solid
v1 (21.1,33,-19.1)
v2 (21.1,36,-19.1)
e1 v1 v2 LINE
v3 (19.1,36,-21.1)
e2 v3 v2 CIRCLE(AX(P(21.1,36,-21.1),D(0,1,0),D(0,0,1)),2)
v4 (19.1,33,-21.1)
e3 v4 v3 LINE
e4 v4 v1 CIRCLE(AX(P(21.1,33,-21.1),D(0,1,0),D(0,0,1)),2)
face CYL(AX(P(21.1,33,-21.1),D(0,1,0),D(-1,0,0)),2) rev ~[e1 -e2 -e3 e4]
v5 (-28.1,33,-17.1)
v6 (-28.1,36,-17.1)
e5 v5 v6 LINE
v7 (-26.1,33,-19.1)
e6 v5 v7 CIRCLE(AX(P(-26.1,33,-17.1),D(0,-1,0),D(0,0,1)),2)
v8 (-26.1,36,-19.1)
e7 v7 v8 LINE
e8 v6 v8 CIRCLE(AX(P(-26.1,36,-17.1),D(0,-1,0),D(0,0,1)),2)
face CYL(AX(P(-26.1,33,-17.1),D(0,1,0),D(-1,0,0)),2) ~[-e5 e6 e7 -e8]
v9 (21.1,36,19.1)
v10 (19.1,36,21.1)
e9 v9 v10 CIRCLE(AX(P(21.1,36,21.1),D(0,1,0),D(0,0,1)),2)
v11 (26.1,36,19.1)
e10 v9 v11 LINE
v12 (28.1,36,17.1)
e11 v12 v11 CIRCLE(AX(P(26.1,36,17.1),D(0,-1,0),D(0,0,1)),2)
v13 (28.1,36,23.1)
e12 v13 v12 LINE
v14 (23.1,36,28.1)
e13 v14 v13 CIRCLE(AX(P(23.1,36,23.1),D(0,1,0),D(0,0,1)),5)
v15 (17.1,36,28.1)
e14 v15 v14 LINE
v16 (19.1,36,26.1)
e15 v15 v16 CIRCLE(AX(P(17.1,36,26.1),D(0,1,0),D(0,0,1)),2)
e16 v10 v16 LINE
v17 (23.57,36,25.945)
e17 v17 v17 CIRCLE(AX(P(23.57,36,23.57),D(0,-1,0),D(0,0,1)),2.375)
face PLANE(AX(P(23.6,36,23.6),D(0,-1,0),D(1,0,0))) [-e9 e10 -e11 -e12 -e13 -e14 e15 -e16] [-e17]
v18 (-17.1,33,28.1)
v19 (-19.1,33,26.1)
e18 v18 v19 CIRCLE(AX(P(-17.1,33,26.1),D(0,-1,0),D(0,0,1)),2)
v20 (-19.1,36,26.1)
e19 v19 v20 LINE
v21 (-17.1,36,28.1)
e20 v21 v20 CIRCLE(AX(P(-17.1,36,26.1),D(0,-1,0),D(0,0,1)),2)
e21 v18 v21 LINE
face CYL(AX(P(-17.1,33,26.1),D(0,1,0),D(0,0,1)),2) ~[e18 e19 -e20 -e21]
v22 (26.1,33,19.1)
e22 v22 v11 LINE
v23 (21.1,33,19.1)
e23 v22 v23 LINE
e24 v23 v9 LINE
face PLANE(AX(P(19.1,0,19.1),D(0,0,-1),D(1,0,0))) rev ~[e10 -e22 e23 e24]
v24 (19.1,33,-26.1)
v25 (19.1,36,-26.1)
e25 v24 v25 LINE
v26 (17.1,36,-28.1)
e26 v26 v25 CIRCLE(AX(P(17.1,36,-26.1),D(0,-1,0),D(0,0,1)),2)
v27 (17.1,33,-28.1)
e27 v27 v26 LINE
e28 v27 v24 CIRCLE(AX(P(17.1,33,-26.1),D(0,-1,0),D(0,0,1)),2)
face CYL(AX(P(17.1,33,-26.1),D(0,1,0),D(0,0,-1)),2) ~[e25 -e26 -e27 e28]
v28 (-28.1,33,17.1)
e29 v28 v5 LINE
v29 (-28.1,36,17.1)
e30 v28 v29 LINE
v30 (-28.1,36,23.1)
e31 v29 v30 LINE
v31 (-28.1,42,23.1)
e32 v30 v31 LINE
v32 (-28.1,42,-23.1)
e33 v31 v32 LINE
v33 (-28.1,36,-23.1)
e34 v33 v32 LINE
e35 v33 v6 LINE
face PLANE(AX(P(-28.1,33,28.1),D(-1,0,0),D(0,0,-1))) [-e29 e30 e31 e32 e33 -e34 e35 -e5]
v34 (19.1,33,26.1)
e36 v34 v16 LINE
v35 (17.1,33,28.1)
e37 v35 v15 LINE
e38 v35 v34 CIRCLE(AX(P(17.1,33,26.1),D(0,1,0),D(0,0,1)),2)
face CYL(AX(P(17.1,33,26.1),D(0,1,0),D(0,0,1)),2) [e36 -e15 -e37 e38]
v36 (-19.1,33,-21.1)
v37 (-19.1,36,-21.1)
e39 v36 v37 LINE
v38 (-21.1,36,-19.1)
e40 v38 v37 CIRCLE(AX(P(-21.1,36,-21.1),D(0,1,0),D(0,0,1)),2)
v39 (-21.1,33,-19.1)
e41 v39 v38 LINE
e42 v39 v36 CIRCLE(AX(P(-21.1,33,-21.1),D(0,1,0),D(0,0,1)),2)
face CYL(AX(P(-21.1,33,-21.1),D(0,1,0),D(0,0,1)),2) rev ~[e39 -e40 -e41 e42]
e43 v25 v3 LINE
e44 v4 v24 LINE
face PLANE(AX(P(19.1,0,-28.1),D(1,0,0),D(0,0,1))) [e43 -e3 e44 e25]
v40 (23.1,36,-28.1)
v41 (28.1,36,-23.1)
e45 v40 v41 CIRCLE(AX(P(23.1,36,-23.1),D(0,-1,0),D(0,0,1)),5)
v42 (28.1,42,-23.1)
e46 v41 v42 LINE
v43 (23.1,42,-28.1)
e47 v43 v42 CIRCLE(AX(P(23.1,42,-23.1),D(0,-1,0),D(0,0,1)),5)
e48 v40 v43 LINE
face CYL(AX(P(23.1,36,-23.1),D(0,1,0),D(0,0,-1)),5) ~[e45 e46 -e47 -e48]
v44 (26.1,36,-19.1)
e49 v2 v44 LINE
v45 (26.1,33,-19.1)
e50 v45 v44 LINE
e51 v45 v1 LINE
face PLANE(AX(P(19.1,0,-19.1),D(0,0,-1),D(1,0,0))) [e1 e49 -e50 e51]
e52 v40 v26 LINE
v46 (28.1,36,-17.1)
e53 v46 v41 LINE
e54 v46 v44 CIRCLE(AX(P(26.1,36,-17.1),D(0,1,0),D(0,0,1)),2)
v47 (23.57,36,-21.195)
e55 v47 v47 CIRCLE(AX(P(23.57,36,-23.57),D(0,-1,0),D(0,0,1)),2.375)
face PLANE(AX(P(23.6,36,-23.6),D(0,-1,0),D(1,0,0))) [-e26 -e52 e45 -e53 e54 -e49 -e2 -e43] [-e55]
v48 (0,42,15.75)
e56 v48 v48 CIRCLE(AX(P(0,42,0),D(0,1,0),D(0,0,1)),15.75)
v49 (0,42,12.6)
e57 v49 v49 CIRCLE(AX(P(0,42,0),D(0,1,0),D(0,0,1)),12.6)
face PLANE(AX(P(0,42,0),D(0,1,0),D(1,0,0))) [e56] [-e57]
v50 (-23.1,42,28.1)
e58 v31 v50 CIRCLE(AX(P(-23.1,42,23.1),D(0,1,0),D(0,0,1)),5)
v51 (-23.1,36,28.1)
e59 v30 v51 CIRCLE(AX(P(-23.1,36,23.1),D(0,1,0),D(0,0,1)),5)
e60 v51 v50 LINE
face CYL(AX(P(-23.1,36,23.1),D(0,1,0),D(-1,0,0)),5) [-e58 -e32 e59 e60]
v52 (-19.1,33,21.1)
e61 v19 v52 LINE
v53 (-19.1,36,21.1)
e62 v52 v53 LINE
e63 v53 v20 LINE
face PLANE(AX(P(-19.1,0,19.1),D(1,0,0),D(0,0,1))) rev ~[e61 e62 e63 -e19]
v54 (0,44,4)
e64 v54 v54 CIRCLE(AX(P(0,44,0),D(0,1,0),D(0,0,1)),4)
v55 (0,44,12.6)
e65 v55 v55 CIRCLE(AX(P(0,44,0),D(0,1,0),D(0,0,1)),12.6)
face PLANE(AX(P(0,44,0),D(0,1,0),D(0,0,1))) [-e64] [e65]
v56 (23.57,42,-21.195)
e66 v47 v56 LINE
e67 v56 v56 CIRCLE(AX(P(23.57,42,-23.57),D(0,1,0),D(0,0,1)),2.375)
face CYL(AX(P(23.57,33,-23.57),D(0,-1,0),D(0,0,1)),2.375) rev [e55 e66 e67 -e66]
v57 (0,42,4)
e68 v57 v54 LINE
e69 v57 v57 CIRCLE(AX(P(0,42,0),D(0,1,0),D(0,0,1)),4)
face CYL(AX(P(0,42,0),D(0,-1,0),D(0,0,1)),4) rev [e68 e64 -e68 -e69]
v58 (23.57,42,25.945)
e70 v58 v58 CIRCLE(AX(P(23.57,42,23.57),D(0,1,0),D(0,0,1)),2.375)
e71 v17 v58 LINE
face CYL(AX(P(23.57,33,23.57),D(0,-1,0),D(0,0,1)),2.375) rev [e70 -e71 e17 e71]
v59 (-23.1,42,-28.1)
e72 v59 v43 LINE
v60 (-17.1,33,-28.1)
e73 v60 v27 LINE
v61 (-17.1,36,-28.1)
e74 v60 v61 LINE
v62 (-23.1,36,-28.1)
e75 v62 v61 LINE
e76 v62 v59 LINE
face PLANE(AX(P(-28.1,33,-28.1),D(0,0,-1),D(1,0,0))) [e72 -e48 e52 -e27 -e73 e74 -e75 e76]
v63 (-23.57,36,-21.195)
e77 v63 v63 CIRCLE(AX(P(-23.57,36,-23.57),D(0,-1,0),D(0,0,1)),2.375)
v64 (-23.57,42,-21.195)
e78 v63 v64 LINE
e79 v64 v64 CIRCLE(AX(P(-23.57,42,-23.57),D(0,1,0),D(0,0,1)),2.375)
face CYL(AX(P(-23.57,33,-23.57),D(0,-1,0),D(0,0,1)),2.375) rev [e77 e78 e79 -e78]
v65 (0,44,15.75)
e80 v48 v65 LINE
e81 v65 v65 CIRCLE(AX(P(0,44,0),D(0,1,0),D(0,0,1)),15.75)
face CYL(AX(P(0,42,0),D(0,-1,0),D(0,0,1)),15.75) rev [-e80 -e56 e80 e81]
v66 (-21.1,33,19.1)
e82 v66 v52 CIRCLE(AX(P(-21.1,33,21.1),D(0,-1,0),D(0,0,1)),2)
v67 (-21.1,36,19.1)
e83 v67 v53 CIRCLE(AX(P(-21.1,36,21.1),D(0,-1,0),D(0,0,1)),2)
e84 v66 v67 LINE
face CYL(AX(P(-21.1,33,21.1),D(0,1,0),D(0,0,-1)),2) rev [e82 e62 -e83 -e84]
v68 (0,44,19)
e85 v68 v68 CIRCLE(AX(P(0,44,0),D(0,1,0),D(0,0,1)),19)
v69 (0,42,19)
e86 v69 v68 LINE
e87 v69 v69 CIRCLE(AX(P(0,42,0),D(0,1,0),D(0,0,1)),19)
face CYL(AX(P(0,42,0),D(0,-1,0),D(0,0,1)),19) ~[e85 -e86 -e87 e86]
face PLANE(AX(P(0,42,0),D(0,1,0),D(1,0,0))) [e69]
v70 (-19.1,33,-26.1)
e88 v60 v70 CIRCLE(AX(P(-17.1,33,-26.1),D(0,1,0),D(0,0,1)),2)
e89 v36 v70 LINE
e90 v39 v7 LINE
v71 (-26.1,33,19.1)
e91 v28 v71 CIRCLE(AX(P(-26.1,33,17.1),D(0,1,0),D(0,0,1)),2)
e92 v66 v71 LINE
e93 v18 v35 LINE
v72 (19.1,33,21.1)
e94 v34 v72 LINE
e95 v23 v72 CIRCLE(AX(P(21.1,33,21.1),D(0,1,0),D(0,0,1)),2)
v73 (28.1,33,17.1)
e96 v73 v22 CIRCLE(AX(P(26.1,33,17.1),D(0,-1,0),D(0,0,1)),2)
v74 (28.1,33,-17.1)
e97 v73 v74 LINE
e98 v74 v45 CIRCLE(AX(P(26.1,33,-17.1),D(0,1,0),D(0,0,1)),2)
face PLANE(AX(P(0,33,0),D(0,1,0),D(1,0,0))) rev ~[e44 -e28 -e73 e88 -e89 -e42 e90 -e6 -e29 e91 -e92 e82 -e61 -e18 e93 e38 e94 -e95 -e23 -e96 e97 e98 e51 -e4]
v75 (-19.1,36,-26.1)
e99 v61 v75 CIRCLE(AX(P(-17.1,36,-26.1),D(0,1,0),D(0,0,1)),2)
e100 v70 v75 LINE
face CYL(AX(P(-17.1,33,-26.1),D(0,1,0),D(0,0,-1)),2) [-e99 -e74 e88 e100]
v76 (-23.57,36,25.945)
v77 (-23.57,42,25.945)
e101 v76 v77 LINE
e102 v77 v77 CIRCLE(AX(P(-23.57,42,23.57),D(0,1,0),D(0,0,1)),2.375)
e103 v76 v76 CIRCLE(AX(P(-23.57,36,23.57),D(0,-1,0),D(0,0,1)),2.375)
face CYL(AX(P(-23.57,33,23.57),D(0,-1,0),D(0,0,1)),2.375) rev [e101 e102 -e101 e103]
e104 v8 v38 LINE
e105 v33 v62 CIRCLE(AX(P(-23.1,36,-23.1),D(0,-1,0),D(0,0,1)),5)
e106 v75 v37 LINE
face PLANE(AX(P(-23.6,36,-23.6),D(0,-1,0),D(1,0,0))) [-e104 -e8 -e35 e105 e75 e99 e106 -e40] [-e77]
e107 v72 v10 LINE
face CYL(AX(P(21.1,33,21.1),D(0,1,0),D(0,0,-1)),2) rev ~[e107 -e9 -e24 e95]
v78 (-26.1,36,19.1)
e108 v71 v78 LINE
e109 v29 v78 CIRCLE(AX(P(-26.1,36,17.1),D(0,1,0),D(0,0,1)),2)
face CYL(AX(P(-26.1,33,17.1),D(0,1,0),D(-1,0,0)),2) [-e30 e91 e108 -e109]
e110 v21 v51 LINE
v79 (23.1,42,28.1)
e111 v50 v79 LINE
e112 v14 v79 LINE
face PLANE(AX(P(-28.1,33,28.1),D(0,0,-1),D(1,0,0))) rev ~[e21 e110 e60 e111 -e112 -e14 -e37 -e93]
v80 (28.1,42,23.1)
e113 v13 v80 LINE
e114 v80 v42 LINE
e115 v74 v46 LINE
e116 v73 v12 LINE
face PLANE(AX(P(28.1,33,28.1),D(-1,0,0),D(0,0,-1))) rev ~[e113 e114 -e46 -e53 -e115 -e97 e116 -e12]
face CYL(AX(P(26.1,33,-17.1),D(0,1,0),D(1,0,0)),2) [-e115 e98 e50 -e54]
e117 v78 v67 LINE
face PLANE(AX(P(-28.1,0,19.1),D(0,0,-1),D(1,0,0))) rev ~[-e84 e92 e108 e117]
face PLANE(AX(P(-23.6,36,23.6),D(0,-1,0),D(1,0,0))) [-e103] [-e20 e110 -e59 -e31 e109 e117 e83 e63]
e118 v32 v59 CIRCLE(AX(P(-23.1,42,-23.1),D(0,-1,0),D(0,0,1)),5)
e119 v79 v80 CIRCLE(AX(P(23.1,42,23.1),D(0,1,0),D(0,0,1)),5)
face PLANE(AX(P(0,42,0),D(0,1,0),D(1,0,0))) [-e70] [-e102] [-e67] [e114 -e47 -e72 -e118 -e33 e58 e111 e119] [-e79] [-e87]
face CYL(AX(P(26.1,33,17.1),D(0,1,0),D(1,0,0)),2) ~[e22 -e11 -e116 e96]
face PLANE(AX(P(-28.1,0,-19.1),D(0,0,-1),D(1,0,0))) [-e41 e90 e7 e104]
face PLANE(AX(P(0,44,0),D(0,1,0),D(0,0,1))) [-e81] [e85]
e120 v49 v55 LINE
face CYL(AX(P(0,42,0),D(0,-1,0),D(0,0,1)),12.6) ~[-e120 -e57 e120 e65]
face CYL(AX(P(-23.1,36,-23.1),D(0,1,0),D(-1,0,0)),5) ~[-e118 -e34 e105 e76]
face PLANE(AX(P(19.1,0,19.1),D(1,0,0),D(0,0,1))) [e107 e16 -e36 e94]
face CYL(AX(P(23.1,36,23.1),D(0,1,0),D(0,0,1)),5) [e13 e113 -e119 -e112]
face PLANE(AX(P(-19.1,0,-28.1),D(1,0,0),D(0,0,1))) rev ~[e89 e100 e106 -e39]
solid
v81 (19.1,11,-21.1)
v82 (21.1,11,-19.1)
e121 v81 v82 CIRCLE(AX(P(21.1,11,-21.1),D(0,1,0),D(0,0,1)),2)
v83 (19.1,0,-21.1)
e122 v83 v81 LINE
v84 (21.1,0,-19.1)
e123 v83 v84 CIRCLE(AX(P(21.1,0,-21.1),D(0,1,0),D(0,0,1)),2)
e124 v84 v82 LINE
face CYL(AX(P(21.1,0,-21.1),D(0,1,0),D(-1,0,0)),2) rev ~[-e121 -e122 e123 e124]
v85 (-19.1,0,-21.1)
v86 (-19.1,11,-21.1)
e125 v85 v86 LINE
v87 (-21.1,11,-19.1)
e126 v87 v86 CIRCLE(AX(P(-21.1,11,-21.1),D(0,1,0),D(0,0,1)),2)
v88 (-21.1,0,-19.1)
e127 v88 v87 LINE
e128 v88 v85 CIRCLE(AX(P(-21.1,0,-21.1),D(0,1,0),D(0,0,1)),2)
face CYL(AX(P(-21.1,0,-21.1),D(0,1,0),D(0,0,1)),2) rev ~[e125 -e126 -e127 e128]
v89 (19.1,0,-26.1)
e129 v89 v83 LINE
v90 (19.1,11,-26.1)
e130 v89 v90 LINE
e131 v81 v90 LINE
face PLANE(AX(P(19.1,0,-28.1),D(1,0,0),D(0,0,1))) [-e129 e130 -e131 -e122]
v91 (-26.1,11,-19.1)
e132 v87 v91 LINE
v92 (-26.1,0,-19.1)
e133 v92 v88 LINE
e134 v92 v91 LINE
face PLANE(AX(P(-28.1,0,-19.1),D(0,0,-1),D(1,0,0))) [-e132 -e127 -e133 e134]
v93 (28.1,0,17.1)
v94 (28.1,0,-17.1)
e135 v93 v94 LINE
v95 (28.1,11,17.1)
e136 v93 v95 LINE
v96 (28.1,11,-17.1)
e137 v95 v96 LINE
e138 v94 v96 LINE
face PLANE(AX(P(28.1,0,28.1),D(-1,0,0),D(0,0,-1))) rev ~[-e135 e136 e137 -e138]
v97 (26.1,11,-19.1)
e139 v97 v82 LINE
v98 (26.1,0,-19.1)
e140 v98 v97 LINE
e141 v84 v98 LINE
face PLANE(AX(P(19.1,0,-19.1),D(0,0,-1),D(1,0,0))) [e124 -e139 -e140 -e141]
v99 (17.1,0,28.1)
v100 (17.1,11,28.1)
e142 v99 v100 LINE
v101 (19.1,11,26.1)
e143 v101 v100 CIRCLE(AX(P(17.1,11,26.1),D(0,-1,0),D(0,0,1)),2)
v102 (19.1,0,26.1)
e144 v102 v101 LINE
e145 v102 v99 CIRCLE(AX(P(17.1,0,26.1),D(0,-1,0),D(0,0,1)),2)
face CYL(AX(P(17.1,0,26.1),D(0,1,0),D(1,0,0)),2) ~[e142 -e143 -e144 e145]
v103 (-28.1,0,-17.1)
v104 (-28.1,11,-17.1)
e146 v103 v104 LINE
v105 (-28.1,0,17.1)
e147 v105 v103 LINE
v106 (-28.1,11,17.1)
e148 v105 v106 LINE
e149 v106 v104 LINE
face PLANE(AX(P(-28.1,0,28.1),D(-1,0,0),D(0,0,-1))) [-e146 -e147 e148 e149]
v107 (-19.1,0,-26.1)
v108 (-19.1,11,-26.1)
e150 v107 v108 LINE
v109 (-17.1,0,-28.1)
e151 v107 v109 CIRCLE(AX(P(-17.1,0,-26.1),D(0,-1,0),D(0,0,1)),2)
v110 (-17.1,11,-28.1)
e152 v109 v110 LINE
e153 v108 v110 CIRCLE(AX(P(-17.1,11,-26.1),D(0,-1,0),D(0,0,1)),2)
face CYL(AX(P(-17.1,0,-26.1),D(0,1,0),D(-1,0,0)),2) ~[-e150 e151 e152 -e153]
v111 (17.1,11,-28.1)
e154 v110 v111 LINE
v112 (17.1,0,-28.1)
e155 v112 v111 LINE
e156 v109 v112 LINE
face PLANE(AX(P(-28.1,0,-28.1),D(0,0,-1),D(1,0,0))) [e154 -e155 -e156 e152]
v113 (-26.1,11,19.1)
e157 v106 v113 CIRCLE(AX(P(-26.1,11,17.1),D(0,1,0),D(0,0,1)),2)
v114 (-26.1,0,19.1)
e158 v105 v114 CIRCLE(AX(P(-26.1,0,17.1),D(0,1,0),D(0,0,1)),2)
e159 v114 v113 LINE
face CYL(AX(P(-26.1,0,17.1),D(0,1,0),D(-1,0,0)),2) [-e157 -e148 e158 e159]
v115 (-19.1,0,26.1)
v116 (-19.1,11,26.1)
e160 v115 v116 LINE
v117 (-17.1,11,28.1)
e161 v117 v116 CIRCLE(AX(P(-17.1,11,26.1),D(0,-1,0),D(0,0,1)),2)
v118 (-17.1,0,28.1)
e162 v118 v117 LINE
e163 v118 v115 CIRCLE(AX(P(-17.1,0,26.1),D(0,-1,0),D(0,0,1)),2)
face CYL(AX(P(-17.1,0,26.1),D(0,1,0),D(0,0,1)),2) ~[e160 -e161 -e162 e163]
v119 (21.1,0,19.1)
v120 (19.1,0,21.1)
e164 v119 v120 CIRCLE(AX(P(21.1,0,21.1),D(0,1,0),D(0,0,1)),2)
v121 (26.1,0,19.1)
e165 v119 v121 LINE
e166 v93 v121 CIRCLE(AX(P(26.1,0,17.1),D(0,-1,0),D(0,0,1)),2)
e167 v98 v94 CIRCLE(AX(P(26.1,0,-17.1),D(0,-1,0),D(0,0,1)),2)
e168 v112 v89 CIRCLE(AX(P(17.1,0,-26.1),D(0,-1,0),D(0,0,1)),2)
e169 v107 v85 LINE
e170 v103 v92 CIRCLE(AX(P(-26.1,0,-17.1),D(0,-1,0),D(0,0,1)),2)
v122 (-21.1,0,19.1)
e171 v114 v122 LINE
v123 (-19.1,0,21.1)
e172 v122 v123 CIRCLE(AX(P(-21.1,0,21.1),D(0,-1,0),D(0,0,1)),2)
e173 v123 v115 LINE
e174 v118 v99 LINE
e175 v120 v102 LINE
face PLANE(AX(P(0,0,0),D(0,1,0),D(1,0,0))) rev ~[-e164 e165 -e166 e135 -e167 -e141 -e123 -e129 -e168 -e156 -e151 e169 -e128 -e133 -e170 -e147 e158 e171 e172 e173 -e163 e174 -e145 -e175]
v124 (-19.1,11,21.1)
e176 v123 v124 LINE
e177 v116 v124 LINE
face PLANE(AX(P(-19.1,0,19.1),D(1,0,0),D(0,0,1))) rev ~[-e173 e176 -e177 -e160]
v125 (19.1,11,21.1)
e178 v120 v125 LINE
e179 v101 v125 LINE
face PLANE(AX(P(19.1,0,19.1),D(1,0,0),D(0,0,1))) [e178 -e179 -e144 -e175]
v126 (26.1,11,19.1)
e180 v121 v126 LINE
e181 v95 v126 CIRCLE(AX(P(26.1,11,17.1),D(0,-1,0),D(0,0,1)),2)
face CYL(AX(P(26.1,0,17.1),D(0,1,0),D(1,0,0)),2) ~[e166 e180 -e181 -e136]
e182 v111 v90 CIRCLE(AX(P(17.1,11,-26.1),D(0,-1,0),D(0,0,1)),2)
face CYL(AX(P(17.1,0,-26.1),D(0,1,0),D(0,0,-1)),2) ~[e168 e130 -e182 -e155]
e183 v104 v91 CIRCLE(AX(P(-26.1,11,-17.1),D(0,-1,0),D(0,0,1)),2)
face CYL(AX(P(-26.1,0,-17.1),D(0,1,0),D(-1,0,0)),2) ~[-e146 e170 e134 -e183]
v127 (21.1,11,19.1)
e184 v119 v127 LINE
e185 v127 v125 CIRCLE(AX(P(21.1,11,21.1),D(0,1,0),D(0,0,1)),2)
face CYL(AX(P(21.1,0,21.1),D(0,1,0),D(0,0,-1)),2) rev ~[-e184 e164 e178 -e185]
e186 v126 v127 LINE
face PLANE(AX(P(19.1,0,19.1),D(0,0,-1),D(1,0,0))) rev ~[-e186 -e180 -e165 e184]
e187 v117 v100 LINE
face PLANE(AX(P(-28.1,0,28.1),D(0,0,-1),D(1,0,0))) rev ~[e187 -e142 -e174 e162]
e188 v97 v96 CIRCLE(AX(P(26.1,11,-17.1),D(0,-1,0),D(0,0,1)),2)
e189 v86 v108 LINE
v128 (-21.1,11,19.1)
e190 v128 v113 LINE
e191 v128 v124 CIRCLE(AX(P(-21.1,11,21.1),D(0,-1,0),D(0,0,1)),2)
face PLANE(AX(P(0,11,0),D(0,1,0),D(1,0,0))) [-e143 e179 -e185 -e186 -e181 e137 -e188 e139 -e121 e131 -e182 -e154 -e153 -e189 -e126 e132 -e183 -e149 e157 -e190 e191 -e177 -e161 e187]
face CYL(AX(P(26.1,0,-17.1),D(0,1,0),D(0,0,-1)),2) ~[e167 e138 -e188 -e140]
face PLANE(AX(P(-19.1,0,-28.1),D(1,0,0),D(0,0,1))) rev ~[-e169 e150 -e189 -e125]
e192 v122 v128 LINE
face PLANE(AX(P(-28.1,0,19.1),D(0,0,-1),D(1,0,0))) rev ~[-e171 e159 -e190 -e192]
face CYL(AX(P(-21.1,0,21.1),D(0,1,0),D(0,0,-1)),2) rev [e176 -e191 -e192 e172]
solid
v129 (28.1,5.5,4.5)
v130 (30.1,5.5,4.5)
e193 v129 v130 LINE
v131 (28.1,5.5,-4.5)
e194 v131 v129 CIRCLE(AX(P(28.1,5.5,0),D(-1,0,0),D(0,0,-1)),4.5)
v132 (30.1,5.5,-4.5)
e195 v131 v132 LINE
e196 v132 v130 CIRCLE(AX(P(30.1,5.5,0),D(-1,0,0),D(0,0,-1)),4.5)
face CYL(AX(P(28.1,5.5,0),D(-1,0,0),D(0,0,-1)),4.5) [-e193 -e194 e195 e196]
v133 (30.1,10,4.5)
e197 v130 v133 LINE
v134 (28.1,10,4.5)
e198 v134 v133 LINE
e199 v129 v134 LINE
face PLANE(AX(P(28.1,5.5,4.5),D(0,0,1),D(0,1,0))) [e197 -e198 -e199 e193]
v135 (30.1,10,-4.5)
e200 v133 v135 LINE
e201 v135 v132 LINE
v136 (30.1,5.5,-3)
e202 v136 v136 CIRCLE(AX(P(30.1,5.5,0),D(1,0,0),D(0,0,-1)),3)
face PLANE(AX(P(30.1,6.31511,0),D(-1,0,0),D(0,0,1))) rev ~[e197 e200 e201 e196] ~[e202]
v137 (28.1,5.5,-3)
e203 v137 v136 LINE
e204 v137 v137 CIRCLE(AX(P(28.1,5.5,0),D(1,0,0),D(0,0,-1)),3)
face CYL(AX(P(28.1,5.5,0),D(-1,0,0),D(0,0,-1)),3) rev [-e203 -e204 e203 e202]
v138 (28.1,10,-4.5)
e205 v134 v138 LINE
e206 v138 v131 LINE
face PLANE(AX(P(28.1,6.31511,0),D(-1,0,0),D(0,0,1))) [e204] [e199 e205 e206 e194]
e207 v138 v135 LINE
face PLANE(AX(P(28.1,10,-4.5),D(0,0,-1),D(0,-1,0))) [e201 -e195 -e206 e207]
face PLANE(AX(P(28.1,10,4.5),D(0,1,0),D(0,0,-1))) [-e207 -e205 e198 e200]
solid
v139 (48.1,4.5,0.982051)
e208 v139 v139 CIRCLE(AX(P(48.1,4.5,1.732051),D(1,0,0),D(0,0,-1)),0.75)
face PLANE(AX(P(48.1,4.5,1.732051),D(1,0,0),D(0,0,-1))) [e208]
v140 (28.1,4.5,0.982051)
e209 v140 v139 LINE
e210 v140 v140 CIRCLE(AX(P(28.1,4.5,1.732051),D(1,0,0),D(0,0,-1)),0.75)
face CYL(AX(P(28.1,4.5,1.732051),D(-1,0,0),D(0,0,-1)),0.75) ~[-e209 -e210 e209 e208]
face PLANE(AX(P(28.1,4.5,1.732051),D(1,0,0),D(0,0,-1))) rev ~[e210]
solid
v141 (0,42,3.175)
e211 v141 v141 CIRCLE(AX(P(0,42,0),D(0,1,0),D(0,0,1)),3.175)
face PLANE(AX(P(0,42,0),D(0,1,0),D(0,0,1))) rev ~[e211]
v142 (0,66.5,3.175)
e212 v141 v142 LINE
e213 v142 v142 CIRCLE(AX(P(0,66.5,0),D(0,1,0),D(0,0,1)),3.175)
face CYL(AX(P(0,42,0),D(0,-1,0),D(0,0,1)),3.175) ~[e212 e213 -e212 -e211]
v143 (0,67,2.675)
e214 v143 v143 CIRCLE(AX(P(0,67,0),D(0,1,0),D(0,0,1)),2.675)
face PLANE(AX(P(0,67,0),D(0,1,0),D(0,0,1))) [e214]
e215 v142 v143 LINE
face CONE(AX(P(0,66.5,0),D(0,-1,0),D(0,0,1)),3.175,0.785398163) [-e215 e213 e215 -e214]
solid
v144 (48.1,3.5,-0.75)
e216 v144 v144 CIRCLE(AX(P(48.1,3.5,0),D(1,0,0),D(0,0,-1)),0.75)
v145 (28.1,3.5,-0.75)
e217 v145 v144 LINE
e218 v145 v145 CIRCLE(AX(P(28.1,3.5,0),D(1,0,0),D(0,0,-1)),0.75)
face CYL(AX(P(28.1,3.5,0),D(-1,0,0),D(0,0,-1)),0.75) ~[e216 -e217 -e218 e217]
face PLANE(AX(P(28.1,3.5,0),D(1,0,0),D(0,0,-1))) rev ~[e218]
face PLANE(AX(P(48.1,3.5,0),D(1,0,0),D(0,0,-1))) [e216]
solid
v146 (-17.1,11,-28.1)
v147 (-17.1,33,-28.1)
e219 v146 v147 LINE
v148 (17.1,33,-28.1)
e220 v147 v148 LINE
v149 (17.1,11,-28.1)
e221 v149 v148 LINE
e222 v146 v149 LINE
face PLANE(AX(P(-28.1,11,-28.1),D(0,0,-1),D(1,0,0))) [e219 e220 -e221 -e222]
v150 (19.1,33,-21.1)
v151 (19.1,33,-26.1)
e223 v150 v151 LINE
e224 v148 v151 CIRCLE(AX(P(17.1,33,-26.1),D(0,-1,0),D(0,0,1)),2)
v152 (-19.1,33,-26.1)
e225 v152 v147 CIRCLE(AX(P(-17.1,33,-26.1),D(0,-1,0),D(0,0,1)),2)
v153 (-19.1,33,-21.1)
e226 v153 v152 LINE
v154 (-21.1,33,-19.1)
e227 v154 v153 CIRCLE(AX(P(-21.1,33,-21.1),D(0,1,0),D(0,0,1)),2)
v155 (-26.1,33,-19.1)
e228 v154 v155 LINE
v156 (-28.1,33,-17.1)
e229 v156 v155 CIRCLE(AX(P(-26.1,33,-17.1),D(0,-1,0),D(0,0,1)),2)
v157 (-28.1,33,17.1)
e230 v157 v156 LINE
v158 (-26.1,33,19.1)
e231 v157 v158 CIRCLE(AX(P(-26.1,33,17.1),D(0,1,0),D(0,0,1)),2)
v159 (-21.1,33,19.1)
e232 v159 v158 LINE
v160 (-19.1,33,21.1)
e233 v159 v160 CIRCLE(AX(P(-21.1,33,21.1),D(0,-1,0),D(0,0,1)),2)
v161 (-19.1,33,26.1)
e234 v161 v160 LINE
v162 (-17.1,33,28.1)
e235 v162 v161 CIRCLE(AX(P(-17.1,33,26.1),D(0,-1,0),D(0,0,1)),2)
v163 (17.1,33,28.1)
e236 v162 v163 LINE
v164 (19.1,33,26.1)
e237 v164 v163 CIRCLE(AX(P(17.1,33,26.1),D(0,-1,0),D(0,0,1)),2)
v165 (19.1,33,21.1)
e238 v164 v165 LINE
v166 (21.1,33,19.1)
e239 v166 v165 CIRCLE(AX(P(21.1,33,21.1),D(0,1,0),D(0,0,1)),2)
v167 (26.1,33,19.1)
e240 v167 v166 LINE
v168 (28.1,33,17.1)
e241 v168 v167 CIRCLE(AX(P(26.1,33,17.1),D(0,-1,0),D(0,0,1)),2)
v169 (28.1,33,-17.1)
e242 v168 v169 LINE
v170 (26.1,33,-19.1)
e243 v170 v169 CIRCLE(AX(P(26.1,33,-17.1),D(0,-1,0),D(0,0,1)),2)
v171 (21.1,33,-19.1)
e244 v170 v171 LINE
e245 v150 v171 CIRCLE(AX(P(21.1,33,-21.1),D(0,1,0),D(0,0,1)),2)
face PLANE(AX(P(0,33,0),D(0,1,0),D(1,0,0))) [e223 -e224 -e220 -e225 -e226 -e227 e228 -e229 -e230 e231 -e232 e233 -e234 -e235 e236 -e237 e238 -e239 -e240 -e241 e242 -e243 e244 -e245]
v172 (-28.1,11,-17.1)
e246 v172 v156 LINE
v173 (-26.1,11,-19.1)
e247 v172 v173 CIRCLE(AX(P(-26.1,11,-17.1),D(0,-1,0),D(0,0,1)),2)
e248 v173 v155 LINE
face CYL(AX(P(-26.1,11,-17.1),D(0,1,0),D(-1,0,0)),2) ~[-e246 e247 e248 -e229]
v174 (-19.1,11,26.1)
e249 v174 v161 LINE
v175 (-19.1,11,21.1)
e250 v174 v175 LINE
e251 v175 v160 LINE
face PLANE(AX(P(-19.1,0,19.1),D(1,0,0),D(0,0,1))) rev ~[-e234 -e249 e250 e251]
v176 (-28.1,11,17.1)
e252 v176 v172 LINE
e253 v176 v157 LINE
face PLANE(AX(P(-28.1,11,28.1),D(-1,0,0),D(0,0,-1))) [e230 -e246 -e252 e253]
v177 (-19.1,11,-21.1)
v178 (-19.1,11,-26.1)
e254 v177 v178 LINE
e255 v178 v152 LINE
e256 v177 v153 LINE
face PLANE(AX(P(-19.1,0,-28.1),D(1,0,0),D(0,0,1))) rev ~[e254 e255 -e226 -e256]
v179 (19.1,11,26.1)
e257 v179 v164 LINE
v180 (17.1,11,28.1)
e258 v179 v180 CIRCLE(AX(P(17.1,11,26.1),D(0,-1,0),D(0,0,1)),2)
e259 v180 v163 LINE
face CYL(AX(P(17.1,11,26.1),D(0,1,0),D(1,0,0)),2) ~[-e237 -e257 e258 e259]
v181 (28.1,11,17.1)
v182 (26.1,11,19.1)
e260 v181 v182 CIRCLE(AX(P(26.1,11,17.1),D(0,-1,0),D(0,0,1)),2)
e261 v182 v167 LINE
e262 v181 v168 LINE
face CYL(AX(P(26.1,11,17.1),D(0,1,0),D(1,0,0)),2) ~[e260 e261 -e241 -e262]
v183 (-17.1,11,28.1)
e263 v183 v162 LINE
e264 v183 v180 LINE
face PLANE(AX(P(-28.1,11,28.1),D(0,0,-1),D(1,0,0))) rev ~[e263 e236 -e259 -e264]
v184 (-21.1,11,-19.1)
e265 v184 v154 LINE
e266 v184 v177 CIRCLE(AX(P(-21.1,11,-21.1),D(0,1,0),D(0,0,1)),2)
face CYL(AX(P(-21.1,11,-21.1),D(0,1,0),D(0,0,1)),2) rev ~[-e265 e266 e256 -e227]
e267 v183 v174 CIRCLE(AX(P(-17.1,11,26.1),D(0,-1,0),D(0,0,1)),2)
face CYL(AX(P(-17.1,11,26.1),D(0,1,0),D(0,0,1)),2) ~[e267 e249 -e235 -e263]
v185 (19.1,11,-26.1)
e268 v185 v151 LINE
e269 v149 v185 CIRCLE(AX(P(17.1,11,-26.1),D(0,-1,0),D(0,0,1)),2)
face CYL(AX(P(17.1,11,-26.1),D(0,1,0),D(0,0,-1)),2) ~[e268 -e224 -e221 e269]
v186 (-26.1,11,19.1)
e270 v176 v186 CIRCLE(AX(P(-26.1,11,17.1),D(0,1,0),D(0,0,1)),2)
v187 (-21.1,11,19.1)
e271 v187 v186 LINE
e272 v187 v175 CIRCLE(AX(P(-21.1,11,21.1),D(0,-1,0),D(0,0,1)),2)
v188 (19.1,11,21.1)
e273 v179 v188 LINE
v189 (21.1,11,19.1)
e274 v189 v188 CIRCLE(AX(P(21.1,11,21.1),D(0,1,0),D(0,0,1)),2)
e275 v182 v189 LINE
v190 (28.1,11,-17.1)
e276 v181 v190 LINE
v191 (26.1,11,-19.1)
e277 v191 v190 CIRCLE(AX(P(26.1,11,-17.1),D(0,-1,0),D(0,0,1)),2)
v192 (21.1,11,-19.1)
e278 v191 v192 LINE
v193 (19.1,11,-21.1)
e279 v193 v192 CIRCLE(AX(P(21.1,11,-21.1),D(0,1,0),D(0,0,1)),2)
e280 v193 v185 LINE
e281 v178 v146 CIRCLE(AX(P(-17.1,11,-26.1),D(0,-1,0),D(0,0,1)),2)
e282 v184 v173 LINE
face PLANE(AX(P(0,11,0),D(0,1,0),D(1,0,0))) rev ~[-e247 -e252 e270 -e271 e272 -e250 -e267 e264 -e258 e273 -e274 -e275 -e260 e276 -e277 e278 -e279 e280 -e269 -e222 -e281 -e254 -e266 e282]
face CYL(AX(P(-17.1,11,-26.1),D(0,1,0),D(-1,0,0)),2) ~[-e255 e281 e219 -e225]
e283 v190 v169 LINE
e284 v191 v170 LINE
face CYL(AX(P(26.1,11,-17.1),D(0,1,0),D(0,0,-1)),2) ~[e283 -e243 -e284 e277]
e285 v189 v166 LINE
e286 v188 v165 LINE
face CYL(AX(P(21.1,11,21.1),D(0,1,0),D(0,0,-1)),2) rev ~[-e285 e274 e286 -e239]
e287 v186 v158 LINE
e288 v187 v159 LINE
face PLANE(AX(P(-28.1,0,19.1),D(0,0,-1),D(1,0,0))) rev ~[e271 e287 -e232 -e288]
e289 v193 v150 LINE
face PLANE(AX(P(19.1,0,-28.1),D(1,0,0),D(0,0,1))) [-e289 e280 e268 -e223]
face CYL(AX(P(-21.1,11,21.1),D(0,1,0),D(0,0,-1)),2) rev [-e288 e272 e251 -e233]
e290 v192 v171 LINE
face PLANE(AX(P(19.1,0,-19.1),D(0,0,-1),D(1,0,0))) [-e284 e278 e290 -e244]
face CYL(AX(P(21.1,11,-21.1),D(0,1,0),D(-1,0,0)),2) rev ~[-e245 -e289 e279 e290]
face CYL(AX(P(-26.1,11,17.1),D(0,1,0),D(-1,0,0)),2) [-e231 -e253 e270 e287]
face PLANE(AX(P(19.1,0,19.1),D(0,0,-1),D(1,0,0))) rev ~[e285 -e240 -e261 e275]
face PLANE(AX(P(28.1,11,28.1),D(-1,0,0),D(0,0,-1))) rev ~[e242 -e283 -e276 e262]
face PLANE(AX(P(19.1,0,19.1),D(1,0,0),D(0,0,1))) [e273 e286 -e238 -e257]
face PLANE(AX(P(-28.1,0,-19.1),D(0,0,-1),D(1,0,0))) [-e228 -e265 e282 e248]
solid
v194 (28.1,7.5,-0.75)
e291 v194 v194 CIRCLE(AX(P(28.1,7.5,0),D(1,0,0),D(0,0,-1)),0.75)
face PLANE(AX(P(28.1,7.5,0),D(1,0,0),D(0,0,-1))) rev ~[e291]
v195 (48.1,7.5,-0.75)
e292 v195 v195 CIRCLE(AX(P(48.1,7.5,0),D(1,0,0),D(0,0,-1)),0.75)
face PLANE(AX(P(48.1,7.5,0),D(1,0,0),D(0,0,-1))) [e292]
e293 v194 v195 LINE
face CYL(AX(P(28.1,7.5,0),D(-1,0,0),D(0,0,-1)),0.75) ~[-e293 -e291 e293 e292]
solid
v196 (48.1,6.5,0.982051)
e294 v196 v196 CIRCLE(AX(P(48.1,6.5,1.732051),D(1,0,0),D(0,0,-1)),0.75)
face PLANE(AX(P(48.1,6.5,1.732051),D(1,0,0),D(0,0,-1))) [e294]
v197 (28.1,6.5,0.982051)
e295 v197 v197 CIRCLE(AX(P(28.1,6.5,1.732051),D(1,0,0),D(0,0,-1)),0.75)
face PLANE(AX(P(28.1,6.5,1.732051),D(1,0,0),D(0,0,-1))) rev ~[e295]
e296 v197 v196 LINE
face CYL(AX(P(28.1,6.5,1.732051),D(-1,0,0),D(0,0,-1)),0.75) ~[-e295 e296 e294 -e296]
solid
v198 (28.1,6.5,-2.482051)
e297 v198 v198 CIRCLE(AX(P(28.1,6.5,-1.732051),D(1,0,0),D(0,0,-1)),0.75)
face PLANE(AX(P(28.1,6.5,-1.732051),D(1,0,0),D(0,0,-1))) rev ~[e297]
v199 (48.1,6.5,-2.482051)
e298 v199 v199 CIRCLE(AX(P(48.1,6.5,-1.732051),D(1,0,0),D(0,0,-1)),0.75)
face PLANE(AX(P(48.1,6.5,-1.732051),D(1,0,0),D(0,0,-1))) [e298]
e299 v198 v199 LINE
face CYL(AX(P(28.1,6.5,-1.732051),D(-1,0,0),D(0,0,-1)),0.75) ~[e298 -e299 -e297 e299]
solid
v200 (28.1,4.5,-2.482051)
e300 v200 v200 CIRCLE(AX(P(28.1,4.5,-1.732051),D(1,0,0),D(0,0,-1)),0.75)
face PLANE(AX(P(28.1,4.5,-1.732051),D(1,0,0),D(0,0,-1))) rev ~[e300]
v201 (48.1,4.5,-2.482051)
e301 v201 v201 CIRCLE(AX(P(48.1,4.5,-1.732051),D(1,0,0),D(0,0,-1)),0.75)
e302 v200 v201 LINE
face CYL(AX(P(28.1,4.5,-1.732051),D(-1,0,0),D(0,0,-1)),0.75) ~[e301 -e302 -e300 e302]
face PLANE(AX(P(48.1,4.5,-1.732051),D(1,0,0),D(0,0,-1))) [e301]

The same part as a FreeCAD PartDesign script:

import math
import FreeCAD as App
import Part
import Sketcher


def edges_at(feature, points):
    """Names of the edges that pass closest to the given points."""
    edges = feature.Shape.Edges
    near = lambda p: min(range(len(edges)), key=lambda i: edges[i].distToShape(Part.Vertex(*p))[0])
    return sorted({f"Edge{near(p) + 1}" for p in points})


def add_polygon(sketch, points):
    """Adds a closed chain of lines whose ends are joined by coincident constraints."""
    first, n = sketch.GeometryCount, len(points)
    for a, b in zip(points, points[1:] + points[:1]):
        sketch.addGeometry(Part.LineSegment(App.Vector(*a, 0), App.Vector(*b, 0)), False)
    for i in range(n):
        sketch.addConstraint(Sketcher.Constraint("Coincident", first + i, 2, first + (i + 1) % n, 1))

doc = App.newDocument("Part")
body = doc.addObject("PartDesign::Body", "Body")

# Sketch on XZ plane
sketch1 = doc.addObject("Sketcher::SketchObject", "Sketch")
body.addObject(sketch1)
sketch1.AttachmentSupport = (doc.XZ_Plane, [""])
sketch1.MapMode = "FlatFace"
add_polygon(sketch1, [(-28.1, -28.1), (-28.1, 28.1), (28.1, 28.1), (28.1, -28.1)])  # lines 0-3
sketch1.addGeometry(Part.Circle(App.Vector(-23.57, 23.57, 0), App.Vector(0, 0, 1), 2.375), False)  # 4
sketch1.addGeometry(Part.Circle(App.Vector(23.57, 23.57, 0), App.Vector(0, 0, 1), 2.375), False)  # 5
sketch1.addGeometry(Part.Circle(App.Vector(-23.57, -23.57, 0), App.Vector(0, 0, 1), 2.375), False)  # 6
sketch1.addGeometry(Part.Circle(App.Vector(23.57, -23.57, 0), App.Vector(0, 0, 1), 2.375), False)  # 7
sketch1.addConstraint([
    Sketcher.Constraint("Vertical", 0),
    Sketcher.Constraint("Horizontal", 1),
    Sketcher.Constraint("Vertical", 2),
    Sketcher.Constraint("Horizontal", 3),
    Sketcher.Constraint("Equal", 4, 5),
    Sketcher.Constraint("Equal", 5, 6),
    Sketcher.Constraint("Equal", 6, 7),
    Sketcher.Constraint("Symmetric", 5, 3, 6, 3, -1, 1),
    Sketcher.Constraint("Symmetric", 4, 3, 7, 3, -1, 1),
    Sketcher.Constraint("Symmetric", 0, 2, 2, 2, -1, 1),
    Sketcher.Constraint("Symmetric", 4, 3, 5, 3, -2),
    Sketcher.Constraint("Equal", 3, 0),
    Sketcher.Constraint("Diameter", 4, 4.75),
    Sketcher.Constraint("DistanceX", 1, 1, 1, 2, 56.2),
    Sketcher.Constraint("DistanceX", 4, 3, -1, 1, 23.57),
    Sketcher.Constraint("DistanceY", -1, 1, 4, 3, 23.57),
])
pad1 = doc.addObject("PartDesign::Pad", "Pad")
body.addObject(pad1)
pad1.Profile = sketch1
pad1.Length = 11
pad1.Reversed = True
body2 = doc.addObject("PartDesign::Body", "Body001")

# Sketch on XZ plane
sketch2 = doc.addObject("Sketcher::SketchObject", "Sketch001")
body2.addObject(sketch2)
sketch2.AttachmentSupport = (doc.getObject("XZ_Plane001"), [""])
sketch2.MapMode = "FlatFace"
sketch2.AttachmentOffset = App.Placement(App.Vector(0, 0, -11), App.Rotation())
add_polygon(sketch2, [(-28.1, -28.1), (-28.1, 28.1), (28.1, 28.1), (28.1, -28.1)])  # lines 0-3
sketch2.addGeometry(Part.Circle(App.Vector(-23.57, 23.57, 0), App.Vector(0, 0, 1), 2.375), False)  # 4
sketch2.addGeometry(Part.Circle(App.Vector(23.57, 23.57, 0), App.Vector(0, 0, 1), 2.375), False)  # 5
sketch2.addGeometry(Part.Circle(App.Vector(-23.57, -23.57, 0), App.Vector(0, 0, 1), 2.375), False)  # 6
sketch2.addGeometry(Part.Circle(App.Vector(23.57, -23.57, 0), App.Vector(0, 0, 1), 2.375), False)  # 7
sketch2.addConstraint([
    Sketcher.Constraint("Vertical", 0),
    Sketcher.Constraint("Horizontal", 1),
    Sketcher.Constraint("Vertical", 2),
    Sketcher.Constraint("Horizontal", 3),
    Sketcher.Constraint("Equal", 4, 5),
    Sketcher.Constraint("Equal", 5, 6),
    Sketcher.Constraint("Equal", 6, 7),
    Sketcher.Constraint("Symmetric", 5, 3, 6, 3, -1, 1),
    Sketcher.Constraint("Symmetric", 4, 3, 7, 3, -1, 1),
    Sketcher.Constraint("Symmetric", 0, 2, 2, 2, -1, 1),
    Sketcher.Constraint("Symmetric", 4, 3, 5, 3, -2),
    Sketcher.Constraint("Equal", 3, 0),
    Sketcher.Constraint("Diameter", 4, 4.75),
    Sketcher.Constraint("DistanceX", 1, 1, 1, 2, 56.2),
    Sketcher.Constraint("DistanceX", 4, 3, -1, 1, 23.57),
    Sketcher.Constraint("DistanceY", -1, 1, 4, 3, 23.57),
])
pad2 = doc.addObject("PartDesign::Pad", "Pad001")
body2.addObject(pad2)
pad2.Profile = sketch2
pad2.Length = 22
pad2.Reversed = True
body3 = doc.addObject("PartDesign::Body", "Body002")

# Sketch on XZ plane
sketch3 = doc.addObject("Sketcher::SketchObject", "Sketch002")
body3.addObject(sketch3)
sketch3.AttachmentSupport = (doc.getObject("XZ_Plane002"), [""])
sketch3.MapMode = "FlatFace"
sketch3.AttachmentOffset = App.Placement(App.Vector(0, 0, -33), App.Rotation())
add_polygon(sketch3, [(-28.1, -28.1), (-28.1, 28.1), (28.1, 28.1), (28.1, -28.1)])  # lines 0-3
sketch3.addGeometry(Part.Circle(App.Vector(-23.57, 23.57, 0), App.Vector(0, 0, 1), 2.375), False)  # 4
sketch3.addGeometry(Part.Circle(App.Vector(23.57, 23.57, 0), App.Vector(0, 0, 1), 2.375), False)  # 5
sketch3.addGeometry(Part.Circle(App.Vector(-23.57, -23.57, 0), App.Vector(0, 0, 1), 2.375), False)  # 6
sketch3.addGeometry(Part.Circle(App.Vector(23.57, -23.57, 0), App.Vector(0, 0, 1), 2.375), False)  # 7
sketch3.addConstraint([
    Sketcher.Constraint("Vertical", 0),
    Sketcher.Constraint("Horizontal", 1),
    Sketcher.Constraint("Vertical", 2),
    Sketcher.Constraint("Horizontal", 3),
    Sketcher.Constraint("Equal", 4, 5),
    Sketcher.Constraint("Equal", 5, 6),
    Sketcher.Constraint("Equal", 6, 7),
    Sketcher.Constraint("Symmetric", 5, 3, 6, 3, -1, 1),
    Sketcher.Constraint("Symmetric", 4, 3, 7, 3, -1, 1),
    Sketcher.Constraint("Symmetric", 0, 2, 2, 2, -1, 1),
    Sketcher.Constraint("Symmetric", 4, 3, 5, 3, -2),
    Sketcher.Constraint("Equal", 3, 0),
    Sketcher.Constraint("Diameter", 4, 4.75),
    Sketcher.Constraint("DistanceX", 1, 1, 1, 2, 56.2),
    Sketcher.Constraint("DistanceX", 4, 3, -1, 1, 23.57),
    Sketcher.Constraint("DistanceY", -1, 1, 4, 3, 23.57),
])
pad3 = doc.addObject("PartDesign::Pad", "Pad002")
body3.addObject(pad3)
pad3.Profile = sketch3
pad3.Length = 9
pad3.Reversed = True

# Sketch on XZ plane
sketch4 = doc.addObject("Sketcher::SketchObject", "Sketch003")
body3.addObject(sketch4)
sketch4.AttachmentSupport = (doc.getObject("XZ_Plane002"), [""])
sketch4.MapMode = "FlatFace"
sketch4.AttachmentOffset = App.Placement(App.Vector(0, 0, -42), App.Rotation())
sketch4.addGeometry([
    Part.Circle(App.Vector(0, 0, 0), App.Vector(0, 0, 1), 19),
    Part.Circle(App.Vector(0, 0, 0), App.Vector(0, 0, 1), 15.75),
    Part.Circle(App.Vector(0, 0, 0), App.Vector(0, 0, 1), 12.6),
    Part.Circle(App.Vector(0, 0, 0), App.Vector(0, 0, 1), 4),
], False)
sketch4.addConstraint([
    Sketcher.Constraint("Coincident", 0, 3, -1, 1),
    Sketcher.Constraint("Coincident", 1, 3, -1, 1),
    Sketcher.Constraint("Coincident", 2, 3, -1, 1),
    Sketcher.Constraint("Coincident", 3, 3, -1, 1),
    Sketcher.Constraint("Diameter", 0, 38.0),
    Sketcher.Constraint("Diameter", 3, 8.0),
    Sketcher.Constraint("Diameter", 1, 31.5),
    Sketcher.Constraint("Diameter", 2, 25.2),
])
pad4 = doc.addObject("PartDesign::Pad", "Pad003")
body3.addObject(pad4)
pad4.Profile = sketch4
pad4.Length = 2
pad4.Reversed = True
body4 = doc.addObject("PartDesign::Body", "Body003")

# Sketch on YZ plane
sketch5 = doc.addObject("Sketcher::SketchObject", "Sketch004")
body4.addObject(sketch5)
sketch5.AttachmentSupport = (doc.getObject("YZ_Plane003"), [""])
sketch5.MapMode = "FlatFace"
sketch5.AttachmentOffset = App.Placement(App.Vector(0, 0, 28.1), App.Rotation())
sketch5.addGeometry([
    Part.LineSegment(App.Vector(10, 4.5, 0), App.Vector(5.5, 4.5, 0)),  # 0
    Part.ArcOfCircle(Part.Circle(App.Vector(5.5, 0, 0), App.Vector(0, 0, 1), 4.5), math.radians(90), math.radians(270)),  # 1
    Part.LineSegment(App.Vector(5.5, -4.5, 0), App.Vector(10, -4.5, 0)),  # 2
    Part.LineSegment(App.Vector(10, -4.5, 0), App.Vector(10, 4.5, 0)),  # 3
    Part.Circle(App.Vector(5.5, 0, 0), App.Vector(0, 0, 1), 3),  # 4
], False)
sketch5.addConstraint([
    Sketcher.Constraint("Tangent", 0, 2, 1, 1),
    Sketcher.Constraint("Tangent", 1, 2, 2, 1),
    Sketcher.Constraint("Coincident", 2, 2, 3, 1),
    Sketcher.Constraint("Coincident", 3, 2, 0, 1),
    Sketcher.Constraint("Horizontal", 0),
    Sketcher.Constraint("Horizontal", 2),
    Sketcher.Constraint("Vertical", 3),
    Sketcher.Constraint("Coincident", 4, 3, 1, 3),
    Sketcher.Constraint("PointOnObject", 1, 3, -1),
    Sketcher.Constraint("Diameter", 4, 6.0),
    Sketcher.Constraint("Radius", 1, 4.5),
    Sketcher.Constraint("DistanceX", 0, 2, 0, 1, 4.5),
    Sketcher.Constraint("DistanceX", -1, 1, 2, 2, 10.0),
])
pad5 = doc.addObject("PartDesign::Pad", "Pad004")
body4.addObject(pad5)
pad5.Profile = sketch5
pad5.Length = 2
body5 = doc.addObject("PartDesign::Body", "Body004")

# Sketch on YZ plane
sketch6 = doc.addObject("Sketcher::SketchObject", "Sketch005")
body5.addObject(sketch6)
sketch6.AttachmentSupport = (doc.getObject("YZ_Plane004"), [""])
sketch6.MapMode = "FlatFace"
sketch6.AttachmentOffset = App.Placement(App.Vector(0, 0, 28.1), App.Rotation())
sketch6.addGeometry(Part.Circle(App.Vector(4.5, 1.732051, 0), App.Vector(0, 0, 1), 0.75), False)
sketch6.addConstraint([
    Sketcher.Constraint("Diameter", 0, 1.5),
    Sketcher.Constraint("DistanceX", -1, 1, 0, 3, 4.5),
    Sketcher.Constraint("DistanceY", -1, 1, 0, 3, 1.732051),
])
pad6 = doc.addObject("PartDesign::Pad", "Pad005")
body5.addObject(pad6)
pad6.Profile = sketch6
pad6.Length = 20
body6 = doc.addObject("PartDesign::Body", "Body005")

# Sketch on YZ plane
sketch7 = doc.addObject("Sketcher::SketchObject", "Sketch006")
body6.addObject(sketch7)
sketch7.AttachmentSupport = (doc.getObject("YZ_Plane005"), [""])
sketch7.MapMode = "FlatFace"
sketch7.AttachmentOffset = App.Placement(App.Vector(0, 0, 28.1), App.Rotation())
sketch7.addGeometry(Part.Circle(App.Vector(3.5, 0, 0), App.Vector(0, 0, 1), 0.75), False)
sketch7.addConstraint([
    Sketcher.Constraint("PointOnObject", 0, 3, -1),
    Sketcher.Constraint("Diameter", 0, 1.5),
    Sketcher.Constraint("DistanceX", -1, 1, 0, 3, 3.5),
])
pad7 = doc.addObject("PartDesign::Pad", "Pad006")
body6.addObject(pad7)
pad7.Profile = sketch7
pad7.Length = 20
body7 = doc.addObject("PartDesign::Body", "Body006")

# Sketch on YZ plane
sketch8 = doc.addObject("Sketcher::SketchObject", "Sketch007")
body7.addObject(sketch8)
sketch8.AttachmentSupport = (doc.getObject("YZ_Plane006"), [""])
sketch8.MapMode = "FlatFace"
sketch8.AttachmentOffset = App.Placement(App.Vector(0, 0, 28.1), App.Rotation())
sketch8.addGeometry(Part.Circle(App.Vector(6.5, 1.732051, 0), App.Vector(0, 0, 1), 0.75), False)
sketch8.addConstraint([
    Sketcher.Constraint("Diameter", 0, 1.5),
    Sketcher.Constraint("DistanceX", -1, 1, 0, 3, 6.5),
    Sketcher.Constraint("DistanceY", -1, 1, 0, 3, 1.732051),
])
pad8 = doc.addObject("PartDesign::Pad", "Pad007")
body7.addObject(pad8)
pad8.Profile = sketch8
pad8.Length = 20
body8 = doc.addObject("PartDesign::Body", "Body007")

# Sketch on YZ plane
sketch9 = doc.addObject("Sketcher::SketchObject", "Sketch008")
body8.addObject(sketch9)
sketch9.AttachmentSupport = (doc.getObject("YZ_Plane007"), [""])
sketch9.MapMode = "FlatFace"
sketch9.AttachmentOffset = App.Placement(App.Vector(0, 0, 28.1), App.Rotation())
sketch9.addGeometry(Part.Circle(App.Vector(7.5, 0, 0), App.Vector(0, 0, 1), 0.75), False)
sketch9.addConstraint([
    Sketcher.Constraint("PointOnObject", 0, 3, -1),
    Sketcher.Constraint("Diameter", 0, 1.5),
    Sketcher.Constraint("DistanceX", -1, 1, 0, 3, 7.5),
])
pad9 = doc.addObject("PartDesign::Pad", "Pad008")
body8.addObject(pad9)
pad9.Profile = sketch9
pad9.Length = 20
body9 = doc.addObject("PartDesign::Body", "Body008")

# Sketch on YZ plane
sketch10 = doc.addObject("Sketcher::SketchObject", "Sketch009")
body9.addObject(sketch10)
sketch10.AttachmentSupport = (doc.getObject("YZ_Plane008"), [""])
sketch10.MapMode = "FlatFace"
sketch10.AttachmentOffset = App.Placement(App.Vector(0, 0, 28.1), App.Rotation())
sketch10.addGeometry(Part.Circle(App.Vector(6.5, -1.732051, 0), App.Vector(0, 0, 1), 0.75), False)
sketch10.addConstraint([
    Sketcher.Constraint("Diameter", 0, 1.5),
    Sketcher.Constraint("DistanceX", -1, 1, 0, 3, 6.5),
    Sketcher.Constraint("DistanceY", 0, 3, -1, 1, 1.732051),
])
pad10 = doc.addObject("PartDesign::Pad", "Pad009")
body9.addObject(pad10)
pad10.Profile = sketch10
pad10.Length = 20
body10 = doc.addObject("PartDesign::Body", "Body009")

# Sketch on YZ plane
sketch11 = doc.addObject("Sketcher::SketchObject", "Sketch010")
body10.addObject(sketch11)
sketch11.AttachmentSupport = (doc.getObject("YZ_Plane009"), [""])
sketch11.MapMode = "FlatFace"
sketch11.AttachmentOffset = App.Placement(App.Vector(0, 0, 28.1), App.Rotation())
sketch11.addGeometry(Part.Circle(App.Vector(4.5, -1.732051, 0), App.Vector(0, 0, 1), 0.75), False)
sketch11.addConstraint([
    Sketcher.Constraint("Diameter", 0, 1.5),
    Sketcher.Constraint("DistanceX", -1, 1, 0, 3, 4.5),
    Sketcher.Constraint("DistanceY", 0, 3, -1, 1, 1.732051),
])
pad11 = doc.addObject("PartDesign::Pad", "Pad010")
body10.addObject(pad11)
pad11.Profile = sketch11
pad11.Length = 20
body11 = doc.addObject("PartDesign::Body", "Body010")

# Sketch on XZ plane
sketch12 = doc.addObject("Sketcher::SketchObject", "Sketch011")
body11.addObject(sketch12)
sketch12.AttachmentSupport = (doc.getObject("XZ_Plane010"), [""])
sketch12.MapMode = "FlatFace"
sketch12.AttachmentOffset = App.Placement(App.Vector(0, 0, -42), App.Rotation())
sketch12.addGeometry(Part.Circle(App.Vector(0, 0, 0), App.Vector(0, 0, 1), 3.175), False)
sketch12.addConstraint([
    Sketcher.Constraint("Coincident", 0, 3, -1, 1),
    Sketcher.Constraint("Diameter", 0, 6.35),
])
pad12 = doc.addObject("PartDesign::Pad", "Pad011")
body11.addObject(pad12)
pad12.Profile = sketch12
pad12.Length = 25
pad12.Reversed = True
doc.recompute()

chamfer = doc.addObject("PartDesign::Chamfer", "Chamfer")
body11.addObject(chamfer)
chamfer.Base = (pad12, edges_at(pad12, [(0, 67, -3.175)]))
chamfer.Size = 0.5
body12 = doc.addObject("PartDesign::Body", "Body011")
body12.AllowCompound = True

# Sketch on XZ plane
sketch13 = doc.addObject("Sketcher::SketchObject", "Sketch012")
body12.addObject(sketch13)
sketch13.AttachmentSupport = (doc.getObject("XZ_Plane011"), [""])
sketch13.MapMode = "FlatFace"
add_polygon(sketch13, [(-28.1, 28.1), (-28.1, 19.1), (-19.1, 19.1), (-19.1, 28.1)])  # lines 0-3
add_polygon(sketch13, [(19.1, 28.1), (19.1, 19.1), (28.1, 19.1), (28.1, 28.1)])  # lines 4-7
add_polygon(sketch13, [(19.1, -19.1), (19.1, -28.1), (28.1, -28.1), (28.1, -19.1)])  # lines 8-11
add_polygon(sketch13, [(-28.1, -19.1), (-28.1, -28.1), (-19.1, -28.1), (-19.1, -19.1)])  # lines 12-15
sketch13.addConstraint([
    Sketcher.Constraint("Vertical", 0),
    Sketcher.Constraint("Horizontal", 1),
    Sketcher.Constraint("Vertical", 2),
    Sketcher.Constraint("Horizontal", 3),
    Sketcher.Constraint("Vertical", 4),
    Sketcher.Constraint("Horizontal", 5),
    Sketcher.Constraint("Vertical", 6),
    Sketcher.Constraint("Horizontal", 7),
    Sketcher.Constraint("Vertical", 8),
    Sketcher.Constraint("Horizontal", 9),
    Sketcher.Constraint("Vertical", 10),
    Sketcher.Constraint("Horizontal", 11),
    Sketcher.Constraint("Vertical", 12),
    Sketcher.Constraint("Horizontal", 13),
    Sketcher.Constraint("Vertical", 14),
    Sketcher.Constraint("Horizontal", 15),
    Sketcher.Constraint("Symmetric", 2, 2, 8, 2, -1, 1),
    Sketcher.Constraint("Symmetric", 0, 2, 10, 2, -1, 1),
    Sketcher.Constraint("Symmetric", 6, 2, 12, 2, -1, 1),
    Sketcher.Constraint("Symmetric", 4, 2, 14, 2, -1, 1),
    Sketcher.Constraint("Symmetric", 1, 2, 4, 2, -2),
    Sketcher.Constraint("Symmetric", 3, 2, 6, 2, -2),
    Sketcher.Constraint("Equal", 15, 0),
    Sketcher.Constraint("DistanceX", 1, 1, 1, 2, 9.0),
    Sketcher.Constraint("DistanceX", 0, 2, -1, 1, 28.1),
    Sketcher.Constraint("DistanceY", -1, 1, 0, 2, 19.1),
])
pad13 = doc.addObject("PartDesign::Pad", "Pad012")
body12.addObject(pad13)
pad13.Profile = sketch13
pad13.Length = 36
pad13.Reversed = True
doc.recompute()

body13 = doc.addObject("PartDesign::Body", "Body012")
body13.BaseFeature = body12
boolean = doc.addObject("PartDesign::Boolean", "Boolean")
body.addObject(boolean)
boolean.Type = "Cut"
boolean.addObjects([body13])
doc.recompute()

fillet = doc.addObject("PartDesign::Fillet", "Fillet")
body.addObject(fillet)
fillet.Base = (boolean, edges_at(boolean, [
    (-19.1, 5.5, -28.1),
    (19.1, 5.5, -28.1),
    (28.1, 5.5, 19.1),
    (-19.1, 5.5, 28.1),
    (-19.1, 5.5, 19.1),
    (-28.1, 5.5, 19.1),
    (19.1, 5.5, 19.1),
    (19.1, 5.5, 28.1),
    (19.1, 5.5, -19.1),
    (28.1, 5.5, -19.1),
    (-19.1, 5.5, -19.1),
    (-28.1, 5.5, -19.1),
]))
fillet.Radius = 2
doc.recompute()

body14 = doc.addObject("PartDesign::Body", "Body013")
body14.BaseFeature = body12
boolean2 = doc.addObject("PartDesign::Boolean", "Boolean001")
body2.addObject(boolean2)
boolean2.Type = "Cut"
boolean2.addObjects([body14])
doc.recompute()

fillet2 = doc.addObject("PartDesign::Fillet", "Fillet001")
body2.addObject(fillet2)
fillet2.Base = (boolean2, edges_at(boolean2, [
    (-19.1, 22, -28.1),
    (19.1, 22, -28.1),
    (28.1, 22, 19.1),
    (-19.1, 22, 28.1),
    (-19.1, 22, 19.1),
    (-28.1, 22, 19.1),
    (19.1, 22, 19.1),
    (19.1, 22, 28.1),
    (19.1, 22, -19.1),
    (28.1, 22, -19.1),
    (-28.1, 22, -19.1),
    (-19.1, 22, -19.1),
]))
fillet2.Radius = 2
doc.recompute()

boolean3 = doc.addObject("PartDesign::Boolean", "Boolean002")
body3.addObject(boolean3)
boolean3.Type = "Cut"
boolean3.addObjects([body12])
doc.recompute()

fillet3 = doc.addObject("PartDesign::Fillet", "Fillet002")
body3.addObject(fillet3)
fillet3.Base = (boolean3, edges_at(boolean3, [
    (-28.1, 39, -28.1),
    (28.1, 39, -28.1),
    (28.1, 39, 28.1),
    (-28.1, 39, 28.1),
]))
fillet3.Radius = 5
doc.recompute()

fillet4 = doc.addObject("PartDesign::Fillet", "Fillet003")
body3.addObject(fillet4)
fillet4.Base = (fillet3, edges_at(fillet3, [
    (-19.1, 34.5, 19.1),
    (-19.1, 34.5, 28.1),
    (-28.1, 34.5, 19.1),
    (19.1, 34.5, 19.1),
    (28.1, 34.5, 19.1),
    (19.1, 34.5, 28.1),
    (19.1, 34.5, -19.1),
    (19.1, 34.5, -28.1),
    (28.1, 34.5, -19.1),
    (-28.1, 34.5, -19.1),
    (-19.1, 34.5, -28.1),
    (-19.1, 34.5, -19.1),
]))
fillet4.Radius = 2

doc.recompute()
